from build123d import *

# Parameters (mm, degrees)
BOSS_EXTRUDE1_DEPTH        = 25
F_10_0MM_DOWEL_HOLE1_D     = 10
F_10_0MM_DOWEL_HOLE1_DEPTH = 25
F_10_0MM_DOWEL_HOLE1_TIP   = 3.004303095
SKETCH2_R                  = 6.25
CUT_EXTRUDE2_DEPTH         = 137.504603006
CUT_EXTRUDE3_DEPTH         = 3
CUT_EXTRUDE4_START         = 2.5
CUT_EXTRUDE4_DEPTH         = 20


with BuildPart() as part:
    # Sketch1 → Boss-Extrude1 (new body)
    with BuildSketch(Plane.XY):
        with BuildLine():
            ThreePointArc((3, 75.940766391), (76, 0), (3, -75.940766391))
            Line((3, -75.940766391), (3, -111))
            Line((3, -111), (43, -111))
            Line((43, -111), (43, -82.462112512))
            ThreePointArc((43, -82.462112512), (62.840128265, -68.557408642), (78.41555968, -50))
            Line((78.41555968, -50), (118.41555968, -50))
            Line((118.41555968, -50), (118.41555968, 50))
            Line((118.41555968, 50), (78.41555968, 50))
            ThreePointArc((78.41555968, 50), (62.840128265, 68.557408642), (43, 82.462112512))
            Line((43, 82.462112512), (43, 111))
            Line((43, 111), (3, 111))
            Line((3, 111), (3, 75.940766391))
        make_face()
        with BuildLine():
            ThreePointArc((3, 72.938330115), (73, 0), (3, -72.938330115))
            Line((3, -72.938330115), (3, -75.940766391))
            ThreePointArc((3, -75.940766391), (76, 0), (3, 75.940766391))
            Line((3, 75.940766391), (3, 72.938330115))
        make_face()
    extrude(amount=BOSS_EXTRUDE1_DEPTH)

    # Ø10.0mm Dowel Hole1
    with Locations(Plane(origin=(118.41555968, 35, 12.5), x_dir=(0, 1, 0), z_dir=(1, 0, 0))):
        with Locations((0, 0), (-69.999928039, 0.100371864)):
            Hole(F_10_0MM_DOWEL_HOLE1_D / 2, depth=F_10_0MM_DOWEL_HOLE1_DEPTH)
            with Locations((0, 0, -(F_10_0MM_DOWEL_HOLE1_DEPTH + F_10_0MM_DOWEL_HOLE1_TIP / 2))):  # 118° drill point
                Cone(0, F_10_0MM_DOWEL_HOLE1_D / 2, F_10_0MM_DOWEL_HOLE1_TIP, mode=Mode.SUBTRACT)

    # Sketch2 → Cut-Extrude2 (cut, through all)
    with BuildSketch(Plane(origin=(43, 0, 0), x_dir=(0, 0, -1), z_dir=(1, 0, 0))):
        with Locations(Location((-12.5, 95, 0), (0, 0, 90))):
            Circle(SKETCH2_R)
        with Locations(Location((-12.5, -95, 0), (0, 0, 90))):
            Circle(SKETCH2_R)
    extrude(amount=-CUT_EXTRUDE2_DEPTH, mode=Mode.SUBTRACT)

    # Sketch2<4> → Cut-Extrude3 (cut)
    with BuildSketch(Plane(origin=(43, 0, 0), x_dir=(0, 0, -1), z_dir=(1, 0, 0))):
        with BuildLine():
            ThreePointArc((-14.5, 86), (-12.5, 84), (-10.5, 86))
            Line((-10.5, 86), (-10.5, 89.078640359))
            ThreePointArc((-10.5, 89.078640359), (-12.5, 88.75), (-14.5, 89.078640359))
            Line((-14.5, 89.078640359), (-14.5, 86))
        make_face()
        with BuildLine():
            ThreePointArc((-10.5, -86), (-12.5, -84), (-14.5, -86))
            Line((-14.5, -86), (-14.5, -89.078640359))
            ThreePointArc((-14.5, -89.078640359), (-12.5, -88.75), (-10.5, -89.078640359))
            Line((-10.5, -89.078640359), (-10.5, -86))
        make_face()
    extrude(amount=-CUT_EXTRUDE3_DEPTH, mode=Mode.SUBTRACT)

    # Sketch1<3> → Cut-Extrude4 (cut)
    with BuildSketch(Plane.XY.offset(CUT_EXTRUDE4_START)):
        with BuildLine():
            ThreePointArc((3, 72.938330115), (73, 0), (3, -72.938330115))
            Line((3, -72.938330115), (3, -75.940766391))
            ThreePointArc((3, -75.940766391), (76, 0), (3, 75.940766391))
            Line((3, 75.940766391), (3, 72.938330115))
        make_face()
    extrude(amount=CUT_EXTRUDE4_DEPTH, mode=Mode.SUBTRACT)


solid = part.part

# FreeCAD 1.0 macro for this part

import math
import FreeCAD as App
import Part
import Sketcher
from FreeCAD import Vector
Q = App.Units.Quantity

doc = App.newDocument("Part")
body = doc.addObject("PartDesign::Body", "Body")

# Sketch on XY plane
sketch1 = body.newObject("Sketcher::SketchObject", "Sketch")
sketch1.AttachmentSupport = (doc.getObject("XY_Plane"), [""])
sketch1.MapMode = "FlatFace"
sketch1.addGeometry([
    Part.LineSegment(Vector(3, -111, 0), Vector(43, -111, 0)),  # 0
    Part.LineSegment(Vector(43, -111, 0), Vector(43, -82, 0)),  # 1
    Part.ArcOfCircle(Part.Circle(Vector(0, 0, 0), Vector(0, 0, 1), 93), math.radians(-62), math.radians(-33)),  # 2
    Part.LineSegment(Vector(78, -50, 0), Vector(118, -50, 0)),  # 3
    Part.LineSegment(Vector(118, -50, 0), Vector(118, 50, 0)),  # 4
    Part.LineSegment(Vector(118, 50, 0), Vector(78, 50, 0)),  # 5
    Part.ArcOfCircle(Part.Circle(Vector(0, 0, 0), Vector(0, 0, 1), 93), math.radians(33), math.radians(62)),  # 6
    Part.LineSegment(Vector(43, 82, 0), Vector(43, 111, 0)),  # 7
    Part.LineSegment(Vector(43, 111, 0), Vector(3, 111, 0)),  # 8
    Part.LineSegment(Vector(3, 111, 0), Vector(3, 73, 0)),  # 9
    Part.ArcOfCircle(Part.Circle(Vector(0, 0, 0), Vector(0, 0, 1), 73), math.radians(-88), math.radians(88)),  # 10
    Part.LineSegment(Vector(3, -73, 0), Vector(3, -111, 0)),  # 11
], False)
sketch1.addConstraint([
    Sketcher.Constraint("Coincident", 0, 2, 1, 1),
    Sketcher.Constraint("Coincident", 1, 2, 2, 1),
    Sketcher.Constraint("Coincident", 2, 2, 3, 1),
    Sketcher.Constraint("Coincident", 3, 2, 4, 1),
    Sketcher.Constraint("Coincident", 4, 2, 5, 1),
    Sketcher.Constraint("Coincident", 5, 2, 6, 1),
    Sketcher.Constraint("Coincident", 6, 2, 7, 1),
    Sketcher.Constraint("Coincident", 7, 2, 8, 1),
    Sketcher.Constraint("Coincident", 8, 2, 9, 1),
    Sketcher.Constraint("Coincident", 9, 2, 10, 2),
    Sketcher.Constraint("Coincident", 10, 1, 11, 1),
    Sketcher.Constraint("Coincident", 11, 2, 0, 1),
    Sketcher.Constraint("Horizontal", 0),
    Sketcher.Constraint("Vertical", 1),
    Sketcher.Constraint("Horizontal", 3),
    Sketcher.Constraint("Vertical", 4),
    Sketcher.Constraint("Horizontal", 5),
    Sketcher.Constraint("Vertical", 7),
    Sketcher.Constraint("Horizontal", 8),
    Sketcher.Constraint("Vertical", 9),
    Sketcher.Constraint("Vertical", 11),
    Sketcher.Constraint("Coincident", 2, 3, -1, 1),
    Sketcher.Constraint("Coincident", 6, 3, -1, 1),
    Sketcher.Constraint("Coincident", 10, 3, -1, 1),
    Sketcher.Constraint("Equal", 2, 6),
    Sketcher.Constraint("Symmetric", 0, 2, 7, 2, -1),
    Sketcher.Constraint("Vertical", 2, 2, 5, 2),
    Sketcher.Constraint("Vertical", 9, 2, 10, 1),
    Sketcher.Constraint("Equal", 0, 3),
    Sketcher.Constraint("Radius", 2, Q("93 mm")),
    Sketcher.Constraint("Radius", 10, Q("73 mm")),
    Sketcher.Constraint("DistanceX", 0, 1, 0, 2, Q("40 mm")),
    Sketcher.Constraint("DistanceY", 4, 1, 4, 2, Q("100 mm")),
    Sketcher.Constraint("DistanceX", -1, 1, 0, 2, Q("43 mm")),
    Sketcher.Constraint("DistanceY", 0, 2, -1, 1, Q("111 mm")),
])
pad1 = body.newObject("PartDesign::Pad", "Pad")
pad1.Profile = sketch1
pad1.Length = 25

# Sketch on YZ plane
sketch2 = body.newObject("Sketcher::SketchObject", "Sketch001")
sketch2.AttachmentSupport = (doc.getObject("YZ_Plane"), [""])
sketch2.MapMode = "FlatFace"
sketch2.AttachmentOffset = App.Placement(Vector(0, 0, 118.41556), App.Rotation())
sketch2.addGeometry([
    Part.Circle(Vector(35, 12, 0), Vector(0, 0, 1), 5),
    Part.Circle(Vector(-35, 13, 0), Vector(0, 0, 1), 5),
], False)
sketch2.addConstraint([
    Sketcher.Constraint("Equal", 0, 1),
    Sketcher.Constraint("Diameter", 0, Q("10 mm")),
    Sketcher.Constraint("DistanceX", -1, 1, 0, 3, Q("35 mm")),
    Sketcher.Constraint("DistanceY", -1, 1, 0, 3, Q("12.5 mm")),
    Sketcher.Constraint("DistanceX", 1, 3, -1, 1, Q("34.999928 mm")),
    Sketcher.Constraint("DistanceY", -1, 1, 1, 3, Q("12.600372 mm")),
])
doc.recompute()
hole = body.newObject("PartDesign::Hole", "Hole")
hole.Profile = sketch2
hole.ThreadType = "None"
hole.Diameter = 10
hole.DepthType = "Dimension"
hole.Depth = 25
hole.DrillPoint = "Angled"
hole.DrillPointAngle = 118

# Sketch on YZ plane
sketch3 = body.newObject("Sketcher::SketchObject", "Sketch002")
sketch3.AttachmentSupport = (doc.getObject("YZ_Plane"), [""])
sketch3.MapMode = "FlatFace"
sketch3.AttachmentOffset = App.Placement(Vector(0, 0, 43), App.Rotation())
sketch3.addGeometry([
    Part.Circle(Vector(95, 12, 0), Vector(0, 0, 1), 6),
    Part.Circle(Vector(-95, 12, 0), Vector(0, 0, 1), 6),
], False)
sketch3.addConstraint([
    Sketcher.Constraint("Equal", 0, 1),
    Sketcher.Constraint("Symmetric", 0, 3, 1, 3, -2),
    Sketcher.Constraint("Diameter", 0, Q("12.5 mm")),
    Sketcher.Constraint("DistanceX", -1, 1, 0, 3, Q("95 mm")),
    Sketcher.Constraint("DistanceY", -1, 1, 0, 3, Q("12.5 mm")),
])
pocket1 = body.newObject("PartDesign::Pocket", "Pocket")
pocket1.Profile = sketch3
pocket1.Type = "ThroughAll"

# Sketch on YZ plane
sketch4 = body.newObject("Sketcher::SketchObject", "Sketch003")
sketch4.AttachmentSupport = (doc.getObject("YZ_Plane"), [""])
sketch4.MapMode = "FlatFace"
sketch4.AttachmentOffset = App.Placement(Vector(0, 0, 43), App.Rotation())
sketch4.addGeometry([
    Part.ArcOfCircle(Part.Circle(Vector(86, 12.5, 0), Vector(0, 0, 1), 2), math.radians(90), math.radians(270)),  # 0
    Part.LineSegment(Vector(86, 10.5, 0), Vector(89.1, 10.5, 0)),  # 1
    Part.ArcOfCircle(Part.Circle(Vector(95, 12.5, 0), Vector(0, 0, 1), 6.2), math.radians(161), math.radians(199)),  # 2
    Part.LineSegment(Vector(89.1, 14.5, 0), Vector(86, 14.5, 0)),  # 3
    Part.ArcOfCircle(Part.Circle(Vector(-86, 12.5, 0), Vector(0, 0, 1), 2), math.radians(-90), math.radians(90)),  # 4
    Part.LineSegment(Vector(-86, 14.5, 0), Vector(-89.1, 14.5, 0)),  # 5
    Part.ArcOfCircle(Part.Circle(Vector(-95, 12.5, 0), Vector(0, 0, 1), 6.2), math.radians(-19), math.radians(19)),  # 6
    Part.LineSegment(Vector(-89.1, 10.5, 0), Vector(-86, 10.5, 0)),  # 7
], False)
sketch4.addConstraint([
    Sketcher.Constraint("Tangent", 0, 2, 1, 1),
    Sketcher.Constraint("Coincident", 1, 2, 2, 2),
    Sketcher.Constraint("Coincident", 2, 1, 3, 1),
    Sketcher.Constraint("Tangent", 3, 2, 0, 1),
    Sketcher.Constraint("Tangent", 4, 2, 5, 1),
    Sketcher.Constraint("Coincident", 5, 2, 6, 2),
    Sketcher.Constraint("Coincident", 6, 1, 7, 1),
    Sketcher.Constraint("Tangent", 7, 2, 4, 1),
    Sketcher.Constraint("Horizontal", 1),
    Sketcher.Constraint("Horizontal", 3),
    Sketcher.Constraint("Horizontal", 5),
    Sketcher.Constraint("Horizontal", 7),
    Sketcher.Constraint("Equal", 0, 4),
    Sketcher.Constraint("Equal", 2, 6),
    Sketcher.Constraint("Symmetric", 0, 3, 4, 3, -2),
    Sketcher.Constraint("Symmetric", 2, 3, 6, 3, -2),
    Sketcher.Constraint("Horizontal", 0, 3, 2, 3),
    Sketcher.Constraint("Radius", 0, Q("2 mm")),
    Sketcher.Constraint("Radius", 2, Q("6.25 mm")),
    Sketcher.Constraint("DistanceX", -1, 1, 0, 3, Q("86 mm")),
    Sketcher.Constraint("DistanceX", -1, 1, 2, 3, Q("95 mm")),
    Sketcher.Constraint("DistanceY", -1, 1, 0, 3, Q("12.5 mm")),
])
pocket2 = body.newObject("PartDesign::Pocket", "Pocket001")
pocket2.Profile = sketch4
pocket2.Length = 3

# Sketch on XY plane
sketch5 = body.newObject("Sketcher::SketchObject", "Sketch004")
sketch5.AttachmentSupport = (doc.getObject("XY_Plane"), [""])
sketch5.MapMode = "FlatFace"
sketch5.AttachmentOffset = App.Placement(Vector(0, 0, 2.5), App.Rotation())
sketch5.addGeometry([
    Part.ArcOfCircle(Part.Circle(Vector(0, 0, 0), Vector(0, 0, 1), 73), math.radians(-88), math.radians(88)),
    Part.LineSegment(Vector(3, -72.9, 0), Vector(3, -75.9, 0)),
    Part.ArcOfCircle(Part.Circle(Vector(0, 0, 0), Vector(0, 0, 1), 76), math.radians(-88), math.radians(88)),
    Part.LineSegment(Vector(3, 75.9, 0), Vector(3, 72.9, 0)),
], False)
sketch5.addConstraint([
    Sketcher.Constraint("Coincident", 0, 1, 1, 1),
    Sketcher.Constraint("Coincident", 1, 2, 2, 1),
    Sketcher.Constraint("Coincident", 2, 2, 3, 1),
    Sketcher.Constraint("Coincident", 3, 2, 0, 2),
    Sketcher.Constraint("Vertical", 1),
    Sketcher.Constraint("Vertical", 3),
    Sketcher.Constraint("Coincident", 0, 3, -1, 1),
    Sketcher.Constraint("Coincident", 2, 3, -1, 1),
    Sketcher.Constraint("Vertical", 1, 2, 2, 2),
    Sketcher.Constraint("Radius", 0, Q("73 mm")),
    Sketcher.Constraint("Radius", 2, Q("76 mm")),
    Sketcher.Constraint("DistanceX", -1, 1, 0, 1, Q("3 mm")),
])
pocket3 = body.newObject("PartDesign::Pocket", "Pocket002")
pocket3.Profile = sketch5
pocket3.Length = 20
pocket3.Reversed = True

doc.recompute()
